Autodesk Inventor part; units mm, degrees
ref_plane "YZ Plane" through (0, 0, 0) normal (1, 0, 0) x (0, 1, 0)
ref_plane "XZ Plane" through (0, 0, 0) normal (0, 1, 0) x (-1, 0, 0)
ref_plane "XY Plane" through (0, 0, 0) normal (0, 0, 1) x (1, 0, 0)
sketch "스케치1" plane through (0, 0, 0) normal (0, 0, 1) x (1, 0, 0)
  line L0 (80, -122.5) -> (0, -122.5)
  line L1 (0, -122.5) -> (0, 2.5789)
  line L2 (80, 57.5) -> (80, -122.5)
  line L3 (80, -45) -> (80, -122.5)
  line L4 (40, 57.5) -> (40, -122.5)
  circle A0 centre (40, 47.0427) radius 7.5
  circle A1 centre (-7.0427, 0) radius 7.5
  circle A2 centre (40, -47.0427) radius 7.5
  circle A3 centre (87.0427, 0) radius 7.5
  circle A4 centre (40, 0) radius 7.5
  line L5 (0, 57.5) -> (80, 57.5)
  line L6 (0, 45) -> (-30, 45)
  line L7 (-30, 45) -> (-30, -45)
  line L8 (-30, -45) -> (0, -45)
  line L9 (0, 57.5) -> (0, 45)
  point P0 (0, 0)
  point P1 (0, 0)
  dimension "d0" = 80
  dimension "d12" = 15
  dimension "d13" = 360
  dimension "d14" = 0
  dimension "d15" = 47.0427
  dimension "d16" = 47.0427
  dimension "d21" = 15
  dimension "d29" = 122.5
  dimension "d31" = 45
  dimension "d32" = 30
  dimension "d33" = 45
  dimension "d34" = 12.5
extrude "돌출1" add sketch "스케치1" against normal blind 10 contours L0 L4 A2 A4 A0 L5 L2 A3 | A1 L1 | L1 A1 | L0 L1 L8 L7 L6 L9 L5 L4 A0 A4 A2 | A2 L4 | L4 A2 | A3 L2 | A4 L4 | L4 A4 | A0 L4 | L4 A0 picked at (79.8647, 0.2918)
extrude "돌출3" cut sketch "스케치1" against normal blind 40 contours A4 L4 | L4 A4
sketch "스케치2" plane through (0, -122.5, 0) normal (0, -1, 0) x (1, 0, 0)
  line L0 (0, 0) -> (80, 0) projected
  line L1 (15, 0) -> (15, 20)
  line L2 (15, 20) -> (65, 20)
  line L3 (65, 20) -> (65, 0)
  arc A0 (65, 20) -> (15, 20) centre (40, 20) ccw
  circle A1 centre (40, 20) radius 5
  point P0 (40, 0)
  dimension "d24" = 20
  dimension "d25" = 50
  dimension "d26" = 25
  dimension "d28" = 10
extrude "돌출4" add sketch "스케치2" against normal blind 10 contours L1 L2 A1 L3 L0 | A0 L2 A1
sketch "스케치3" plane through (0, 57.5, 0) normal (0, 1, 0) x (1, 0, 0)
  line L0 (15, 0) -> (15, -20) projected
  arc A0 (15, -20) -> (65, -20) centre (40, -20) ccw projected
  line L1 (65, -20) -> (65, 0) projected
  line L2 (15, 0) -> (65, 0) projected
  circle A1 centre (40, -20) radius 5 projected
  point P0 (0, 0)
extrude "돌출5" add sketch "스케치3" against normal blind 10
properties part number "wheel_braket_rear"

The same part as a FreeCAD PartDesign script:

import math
import FreeCAD as App
import Part
import Sketcher

V = App.Vector
Q = App.Units.Quantity

doc = App.newDocument("Part")
body = doc.addObject("PartDesign::Body", "Body")

sketch1 = body.newObject("Sketcher::SketchObject", "Sketch")
sketch1.AttachmentSupport = (doc.getObject("XY_Plane"), [""])
sketch1.MapMode = "FlatFace"
sketch1.addGeometry([
    Part.LineSegment(V(80, -122, 0), V(80, 58, 0)),
    Part.LineSegment(V(80, 58, 0), V(0, 58, 0)),
    Part.LineSegment(V(0, 58, 0), V(0, 45, 0)),
    Part.LineSegment(V(0, 45, 0), V(-30, 45, 0)),
    Part.LineSegment(V(-30, 45, 0), V(-30, -45, 0)),
    Part.LineSegment(V(-30, -45, 0), V(0, -45, 0)),
    Part.LineSegment(V(0, -45, 0), V(0, -122, 0)),
    Part.LineSegment(V(0, -122, 0), V(80, -122, 0)),
], False)
sketch1.addConstraint([
    Sketcher.Constraint("Coincident", 0, 2, 1, 1),
    Sketcher.Constraint("Coincident", 1, 2, 2, 1),
    Sketcher.Constraint("Coincident", 2, 2, 3, 1),
    Sketcher.Constraint("Coincident", 3, 2, 4, 1),
    Sketcher.Constraint("Coincident", 4, 2, 5, 1),
    Sketcher.Constraint("Coincident", 5, 2, 6, 1),
    Sketcher.Constraint("Coincident", 6, 2, 7, 1),
    Sketcher.Constraint("Coincident", 7, 2, 0, 1),
    Sketcher.Constraint("Vertical", 0),
    Sketcher.Constraint("Horizontal", 1),
    Sketcher.Constraint("Vertical", 2),
    Sketcher.Constraint("Horizontal", 3),
    Sketcher.Constraint("Vertical", 4),
    Sketcher.Constraint("Horizontal", 5),
    Sketcher.Constraint("Vertical", 6),
    Sketcher.Constraint("Horizontal", 7),
    Sketcher.Constraint("Symmetric", 2, 2, 5, 2, -1, 1),
    Sketcher.Constraint("PointOnObject", 1, 2, -2),
    Sketcher.Constraint("DistanceX", 1, 2, 1, 1, Q("80 mm")),
    Sketcher.Constraint("DistanceX", 3, 2, 3, 1, Q("30 mm")),
    Sketcher.Constraint("DistanceY", 2, 2, 2, 1, Q("12.5 mm")),
    Sketcher.Constraint("DistanceY", -1, 1, 2, 2, Q("45 mm")),
    Sketcher.Constraint("DistanceY", 6, 2, -1, 1, Q("122.5 mm")),
])
pad1 = body.newObject("PartDesign::Pad", "Pad")
pad1.Profile = sketch1
pad1.Length = 10
pad1.Reversed = True

sketch2 = body.newObject("Sketcher::SketchObject", "Sketch001")
sketch2.AttachmentSupport = (doc.getObject("XY_Plane"), [""])
sketch2.MapMode = "FlatFace"
sketch2.addGeometry(Part.Circle(V(40, 0, 0), V(0, 0, 1), 8), False)
sketch2.addConstraint([
    Sketcher.Constraint("PointOnObject", 0, 3, -1),
    Sketcher.Constraint("Diameter", 0, Q("15 mm")),
    Sketcher.Constraint("DistanceX", -1, 1, 0, 3, Q("40 mm")),
])
pocket1 = body.newObject("PartDesign::Pocket", "Pocket")
pocket1.Profile = sketch2
pocket1.Length = 40

sketch3 = body.newObject("Sketcher::SketchObject", "Sketch002")
sketch3.AttachmentSupport = (doc.getObject("XZ_Plane"), [""])
sketch3.MapMode = "FlatFace"
sketch3.AttachmentOffset = App.Placement(V(0, 0, 122.5), App.Rotation())
sketch3.addGeometry([
    Part.LineSegment(V(15, 20, 0), V(15, 0, 0)),
    Part.LineSegment(V(15, 0, 0), V(65, 0, 0)),
    Part.LineSegment(V(65, 0, 0), V(65, 20, 0)),
    Part.ArcOfCircle(Part.Circle(V(40, 20, 0), V(0, 0, 1), 25), math.radians(0), math.radians(180)),
    Part.Circle(V(40, 20, 0), V(0, 0, 1), 5),
], False)
sketch3.addConstraint([
    Sketcher.Constraint("Coincident", 0, 2, 1, 1),
    Sketcher.Constraint("Coincident", 1, 2, 2, 1),
    Sketcher.Constraint("Tangent", 2, 2, 3, 1),
    Sketcher.Constraint("Tangent", 3, 2, 0, 1),
    Sketcher.Constraint("Vertical", 0),
    Sketcher.Constraint("Horizontal", 1),
    Sketcher.Constraint("Vertical", 2),
    Sketcher.Constraint("Coincident", 4, 3, 3, 3),
    Sketcher.Constraint("PointOnObject", 0, 2, -1),
    Sketcher.Constraint("Diameter", 4, Q("10 mm")),
    Sketcher.Constraint("Radius", 3, Q("25 mm")),
    Sketcher.Constraint("DistanceY", 0, 2, 0, 1, Q("20 mm")),
    Sketcher.Constraint("DistanceX", -1, 1, 3, 3, Q("40 mm")),
])
pad2 = body.newObject("PartDesign::Pad", "Pad001")
pad2.Profile = sketch3
pad2.Length = 10
pad2.Reversed = True

sketch4 = body.newObject("Sketcher::SketchObject", "Sketch003")
sketch4.AttachmentSupport = (doc.getObject("XZ_Plane"), [""])
sketch4.MapMode = "FlatFace"
sketch4.AttachmentOffset = App.Placement(V(0, 0, -57.5), App.Rotation())
sketch4.addGeometry([
    Part.LineSegment(V(65, 0, 0), V(15, 0, 0)),
    Part.LineSegment(V(15, 0, 0), V(15, 20, 0)),
    Part.ArcOfCircle(Part.Circle(V(40, 20, 0), V(0, 0, 1), 25), math.radians(0), math.radians(180)),
    Part.LineSegment(V(65, 20, 0), V(65, 0, 0)),
    Part.Circle(V(40, 20, 0), V(0, 0, 1), 5),
], False)
sketch4.addConstraint([
    Sketcher.Constraint("Coincident", 0, 2, 1, 1),
    Sketcher.Constraint("Tangent", 1, 2, 2, 2),
    Sketcher.Constraint("Tangent", 2, 1, 3, 1),
    Sketcher.Constraint("Coincident", 3, 2, 0, 1),
    Sketcher.Constraint("Horizontal", 0),
    Sketcher.Constraint("Vertical", 1),
    Sketcher.Constraint("Vertical", 3),
    Sketcher.Constraint("Coincident", 4, 3, 2, 3),
    Sketcher.Constraint("PointOnObject", 0, 2, -1),
    Sketcher.Constraint("Diameter", 4, Q("10 mm")),
    Sketcher.Constraint("Radius", 2, Q("25 mm")),
    Sketcher.Constraint("DistanceY", 1, 1, 1, 2, Q("20 mm")),
    Sketcher.Constraint("DistanceX", -1, 1, 2, 3, Q("40 mm")),
])
pad3 = body.newObject("PartDesign::Pad", "Pad002")
pad3.Profile = sketch4
pad3.Length = 10

doc.recompute()
